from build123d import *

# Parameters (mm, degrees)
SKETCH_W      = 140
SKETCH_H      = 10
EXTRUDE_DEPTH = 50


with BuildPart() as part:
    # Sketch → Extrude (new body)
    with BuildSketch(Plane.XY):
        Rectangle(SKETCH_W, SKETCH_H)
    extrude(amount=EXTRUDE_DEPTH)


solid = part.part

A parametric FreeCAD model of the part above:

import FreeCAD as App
import Part
import Sketcher


def add_polygon(sketch, points):
    """Adds a closed chain of lines whose ends are joined by coincident constraints."""
    first, n = sketch.GeometryCount, len(points)
    for a, b in zip(points, points[1:] + points[:1]):
        sketch.addGeometry(Part.LineSegment(App.Vector(*a, 0), App.Vector(*b, 0)), False)
    for i in range(n):
        sketch.addConstraint(Sketcher.Constraint("Coincident", first + i, 2, first + (i + 1) % n, 1))

doc = App.newDocument("Part")
body = doc.addObject("PartDesign::Body", "Body")

# Sketch on XY plane
sketch1 = body.newObject("Sketcher::SketchObject", "Sketch")
sketch1.AttachmentSupport = (doc.getObject("XY_Plane"), [""])
sketch1.MapMode = "FlatFace"
add_polygon(sketch1, [(-70, 5), (-70, -5), (70, -5), (70, 5)])  # lines 0-3
sketch1.addConstraint(Sketcher.Constraint("Vertical", 0))
sketch1.addConstraint(Sketcher.Constraint("Horizontal", 1))
sketch1.addConstraint(Sketcher.Constraint("Vertical", 2))
sketch1.addConstraint(Sketcher.Constraint("Horizontal", 3))
sketch1.addConstraint(Sketcher.Constraint("Symmetric", 0, 2, 2, 2, -1, 1))
sketch1.addConstraint(Sketcher.Constraint("DistanceX", 1, 1, 1, 2, 140.0))
sketch1.addConstraint(Sketcher.Constraint("DistanceY", 0, 2, 0, 1, 10.0))
pad1 = body.newObject("PartDesign::Pad", "Pad")
pad1.Profile = sketch1
pad1.Length = 50

doc.recompute()
